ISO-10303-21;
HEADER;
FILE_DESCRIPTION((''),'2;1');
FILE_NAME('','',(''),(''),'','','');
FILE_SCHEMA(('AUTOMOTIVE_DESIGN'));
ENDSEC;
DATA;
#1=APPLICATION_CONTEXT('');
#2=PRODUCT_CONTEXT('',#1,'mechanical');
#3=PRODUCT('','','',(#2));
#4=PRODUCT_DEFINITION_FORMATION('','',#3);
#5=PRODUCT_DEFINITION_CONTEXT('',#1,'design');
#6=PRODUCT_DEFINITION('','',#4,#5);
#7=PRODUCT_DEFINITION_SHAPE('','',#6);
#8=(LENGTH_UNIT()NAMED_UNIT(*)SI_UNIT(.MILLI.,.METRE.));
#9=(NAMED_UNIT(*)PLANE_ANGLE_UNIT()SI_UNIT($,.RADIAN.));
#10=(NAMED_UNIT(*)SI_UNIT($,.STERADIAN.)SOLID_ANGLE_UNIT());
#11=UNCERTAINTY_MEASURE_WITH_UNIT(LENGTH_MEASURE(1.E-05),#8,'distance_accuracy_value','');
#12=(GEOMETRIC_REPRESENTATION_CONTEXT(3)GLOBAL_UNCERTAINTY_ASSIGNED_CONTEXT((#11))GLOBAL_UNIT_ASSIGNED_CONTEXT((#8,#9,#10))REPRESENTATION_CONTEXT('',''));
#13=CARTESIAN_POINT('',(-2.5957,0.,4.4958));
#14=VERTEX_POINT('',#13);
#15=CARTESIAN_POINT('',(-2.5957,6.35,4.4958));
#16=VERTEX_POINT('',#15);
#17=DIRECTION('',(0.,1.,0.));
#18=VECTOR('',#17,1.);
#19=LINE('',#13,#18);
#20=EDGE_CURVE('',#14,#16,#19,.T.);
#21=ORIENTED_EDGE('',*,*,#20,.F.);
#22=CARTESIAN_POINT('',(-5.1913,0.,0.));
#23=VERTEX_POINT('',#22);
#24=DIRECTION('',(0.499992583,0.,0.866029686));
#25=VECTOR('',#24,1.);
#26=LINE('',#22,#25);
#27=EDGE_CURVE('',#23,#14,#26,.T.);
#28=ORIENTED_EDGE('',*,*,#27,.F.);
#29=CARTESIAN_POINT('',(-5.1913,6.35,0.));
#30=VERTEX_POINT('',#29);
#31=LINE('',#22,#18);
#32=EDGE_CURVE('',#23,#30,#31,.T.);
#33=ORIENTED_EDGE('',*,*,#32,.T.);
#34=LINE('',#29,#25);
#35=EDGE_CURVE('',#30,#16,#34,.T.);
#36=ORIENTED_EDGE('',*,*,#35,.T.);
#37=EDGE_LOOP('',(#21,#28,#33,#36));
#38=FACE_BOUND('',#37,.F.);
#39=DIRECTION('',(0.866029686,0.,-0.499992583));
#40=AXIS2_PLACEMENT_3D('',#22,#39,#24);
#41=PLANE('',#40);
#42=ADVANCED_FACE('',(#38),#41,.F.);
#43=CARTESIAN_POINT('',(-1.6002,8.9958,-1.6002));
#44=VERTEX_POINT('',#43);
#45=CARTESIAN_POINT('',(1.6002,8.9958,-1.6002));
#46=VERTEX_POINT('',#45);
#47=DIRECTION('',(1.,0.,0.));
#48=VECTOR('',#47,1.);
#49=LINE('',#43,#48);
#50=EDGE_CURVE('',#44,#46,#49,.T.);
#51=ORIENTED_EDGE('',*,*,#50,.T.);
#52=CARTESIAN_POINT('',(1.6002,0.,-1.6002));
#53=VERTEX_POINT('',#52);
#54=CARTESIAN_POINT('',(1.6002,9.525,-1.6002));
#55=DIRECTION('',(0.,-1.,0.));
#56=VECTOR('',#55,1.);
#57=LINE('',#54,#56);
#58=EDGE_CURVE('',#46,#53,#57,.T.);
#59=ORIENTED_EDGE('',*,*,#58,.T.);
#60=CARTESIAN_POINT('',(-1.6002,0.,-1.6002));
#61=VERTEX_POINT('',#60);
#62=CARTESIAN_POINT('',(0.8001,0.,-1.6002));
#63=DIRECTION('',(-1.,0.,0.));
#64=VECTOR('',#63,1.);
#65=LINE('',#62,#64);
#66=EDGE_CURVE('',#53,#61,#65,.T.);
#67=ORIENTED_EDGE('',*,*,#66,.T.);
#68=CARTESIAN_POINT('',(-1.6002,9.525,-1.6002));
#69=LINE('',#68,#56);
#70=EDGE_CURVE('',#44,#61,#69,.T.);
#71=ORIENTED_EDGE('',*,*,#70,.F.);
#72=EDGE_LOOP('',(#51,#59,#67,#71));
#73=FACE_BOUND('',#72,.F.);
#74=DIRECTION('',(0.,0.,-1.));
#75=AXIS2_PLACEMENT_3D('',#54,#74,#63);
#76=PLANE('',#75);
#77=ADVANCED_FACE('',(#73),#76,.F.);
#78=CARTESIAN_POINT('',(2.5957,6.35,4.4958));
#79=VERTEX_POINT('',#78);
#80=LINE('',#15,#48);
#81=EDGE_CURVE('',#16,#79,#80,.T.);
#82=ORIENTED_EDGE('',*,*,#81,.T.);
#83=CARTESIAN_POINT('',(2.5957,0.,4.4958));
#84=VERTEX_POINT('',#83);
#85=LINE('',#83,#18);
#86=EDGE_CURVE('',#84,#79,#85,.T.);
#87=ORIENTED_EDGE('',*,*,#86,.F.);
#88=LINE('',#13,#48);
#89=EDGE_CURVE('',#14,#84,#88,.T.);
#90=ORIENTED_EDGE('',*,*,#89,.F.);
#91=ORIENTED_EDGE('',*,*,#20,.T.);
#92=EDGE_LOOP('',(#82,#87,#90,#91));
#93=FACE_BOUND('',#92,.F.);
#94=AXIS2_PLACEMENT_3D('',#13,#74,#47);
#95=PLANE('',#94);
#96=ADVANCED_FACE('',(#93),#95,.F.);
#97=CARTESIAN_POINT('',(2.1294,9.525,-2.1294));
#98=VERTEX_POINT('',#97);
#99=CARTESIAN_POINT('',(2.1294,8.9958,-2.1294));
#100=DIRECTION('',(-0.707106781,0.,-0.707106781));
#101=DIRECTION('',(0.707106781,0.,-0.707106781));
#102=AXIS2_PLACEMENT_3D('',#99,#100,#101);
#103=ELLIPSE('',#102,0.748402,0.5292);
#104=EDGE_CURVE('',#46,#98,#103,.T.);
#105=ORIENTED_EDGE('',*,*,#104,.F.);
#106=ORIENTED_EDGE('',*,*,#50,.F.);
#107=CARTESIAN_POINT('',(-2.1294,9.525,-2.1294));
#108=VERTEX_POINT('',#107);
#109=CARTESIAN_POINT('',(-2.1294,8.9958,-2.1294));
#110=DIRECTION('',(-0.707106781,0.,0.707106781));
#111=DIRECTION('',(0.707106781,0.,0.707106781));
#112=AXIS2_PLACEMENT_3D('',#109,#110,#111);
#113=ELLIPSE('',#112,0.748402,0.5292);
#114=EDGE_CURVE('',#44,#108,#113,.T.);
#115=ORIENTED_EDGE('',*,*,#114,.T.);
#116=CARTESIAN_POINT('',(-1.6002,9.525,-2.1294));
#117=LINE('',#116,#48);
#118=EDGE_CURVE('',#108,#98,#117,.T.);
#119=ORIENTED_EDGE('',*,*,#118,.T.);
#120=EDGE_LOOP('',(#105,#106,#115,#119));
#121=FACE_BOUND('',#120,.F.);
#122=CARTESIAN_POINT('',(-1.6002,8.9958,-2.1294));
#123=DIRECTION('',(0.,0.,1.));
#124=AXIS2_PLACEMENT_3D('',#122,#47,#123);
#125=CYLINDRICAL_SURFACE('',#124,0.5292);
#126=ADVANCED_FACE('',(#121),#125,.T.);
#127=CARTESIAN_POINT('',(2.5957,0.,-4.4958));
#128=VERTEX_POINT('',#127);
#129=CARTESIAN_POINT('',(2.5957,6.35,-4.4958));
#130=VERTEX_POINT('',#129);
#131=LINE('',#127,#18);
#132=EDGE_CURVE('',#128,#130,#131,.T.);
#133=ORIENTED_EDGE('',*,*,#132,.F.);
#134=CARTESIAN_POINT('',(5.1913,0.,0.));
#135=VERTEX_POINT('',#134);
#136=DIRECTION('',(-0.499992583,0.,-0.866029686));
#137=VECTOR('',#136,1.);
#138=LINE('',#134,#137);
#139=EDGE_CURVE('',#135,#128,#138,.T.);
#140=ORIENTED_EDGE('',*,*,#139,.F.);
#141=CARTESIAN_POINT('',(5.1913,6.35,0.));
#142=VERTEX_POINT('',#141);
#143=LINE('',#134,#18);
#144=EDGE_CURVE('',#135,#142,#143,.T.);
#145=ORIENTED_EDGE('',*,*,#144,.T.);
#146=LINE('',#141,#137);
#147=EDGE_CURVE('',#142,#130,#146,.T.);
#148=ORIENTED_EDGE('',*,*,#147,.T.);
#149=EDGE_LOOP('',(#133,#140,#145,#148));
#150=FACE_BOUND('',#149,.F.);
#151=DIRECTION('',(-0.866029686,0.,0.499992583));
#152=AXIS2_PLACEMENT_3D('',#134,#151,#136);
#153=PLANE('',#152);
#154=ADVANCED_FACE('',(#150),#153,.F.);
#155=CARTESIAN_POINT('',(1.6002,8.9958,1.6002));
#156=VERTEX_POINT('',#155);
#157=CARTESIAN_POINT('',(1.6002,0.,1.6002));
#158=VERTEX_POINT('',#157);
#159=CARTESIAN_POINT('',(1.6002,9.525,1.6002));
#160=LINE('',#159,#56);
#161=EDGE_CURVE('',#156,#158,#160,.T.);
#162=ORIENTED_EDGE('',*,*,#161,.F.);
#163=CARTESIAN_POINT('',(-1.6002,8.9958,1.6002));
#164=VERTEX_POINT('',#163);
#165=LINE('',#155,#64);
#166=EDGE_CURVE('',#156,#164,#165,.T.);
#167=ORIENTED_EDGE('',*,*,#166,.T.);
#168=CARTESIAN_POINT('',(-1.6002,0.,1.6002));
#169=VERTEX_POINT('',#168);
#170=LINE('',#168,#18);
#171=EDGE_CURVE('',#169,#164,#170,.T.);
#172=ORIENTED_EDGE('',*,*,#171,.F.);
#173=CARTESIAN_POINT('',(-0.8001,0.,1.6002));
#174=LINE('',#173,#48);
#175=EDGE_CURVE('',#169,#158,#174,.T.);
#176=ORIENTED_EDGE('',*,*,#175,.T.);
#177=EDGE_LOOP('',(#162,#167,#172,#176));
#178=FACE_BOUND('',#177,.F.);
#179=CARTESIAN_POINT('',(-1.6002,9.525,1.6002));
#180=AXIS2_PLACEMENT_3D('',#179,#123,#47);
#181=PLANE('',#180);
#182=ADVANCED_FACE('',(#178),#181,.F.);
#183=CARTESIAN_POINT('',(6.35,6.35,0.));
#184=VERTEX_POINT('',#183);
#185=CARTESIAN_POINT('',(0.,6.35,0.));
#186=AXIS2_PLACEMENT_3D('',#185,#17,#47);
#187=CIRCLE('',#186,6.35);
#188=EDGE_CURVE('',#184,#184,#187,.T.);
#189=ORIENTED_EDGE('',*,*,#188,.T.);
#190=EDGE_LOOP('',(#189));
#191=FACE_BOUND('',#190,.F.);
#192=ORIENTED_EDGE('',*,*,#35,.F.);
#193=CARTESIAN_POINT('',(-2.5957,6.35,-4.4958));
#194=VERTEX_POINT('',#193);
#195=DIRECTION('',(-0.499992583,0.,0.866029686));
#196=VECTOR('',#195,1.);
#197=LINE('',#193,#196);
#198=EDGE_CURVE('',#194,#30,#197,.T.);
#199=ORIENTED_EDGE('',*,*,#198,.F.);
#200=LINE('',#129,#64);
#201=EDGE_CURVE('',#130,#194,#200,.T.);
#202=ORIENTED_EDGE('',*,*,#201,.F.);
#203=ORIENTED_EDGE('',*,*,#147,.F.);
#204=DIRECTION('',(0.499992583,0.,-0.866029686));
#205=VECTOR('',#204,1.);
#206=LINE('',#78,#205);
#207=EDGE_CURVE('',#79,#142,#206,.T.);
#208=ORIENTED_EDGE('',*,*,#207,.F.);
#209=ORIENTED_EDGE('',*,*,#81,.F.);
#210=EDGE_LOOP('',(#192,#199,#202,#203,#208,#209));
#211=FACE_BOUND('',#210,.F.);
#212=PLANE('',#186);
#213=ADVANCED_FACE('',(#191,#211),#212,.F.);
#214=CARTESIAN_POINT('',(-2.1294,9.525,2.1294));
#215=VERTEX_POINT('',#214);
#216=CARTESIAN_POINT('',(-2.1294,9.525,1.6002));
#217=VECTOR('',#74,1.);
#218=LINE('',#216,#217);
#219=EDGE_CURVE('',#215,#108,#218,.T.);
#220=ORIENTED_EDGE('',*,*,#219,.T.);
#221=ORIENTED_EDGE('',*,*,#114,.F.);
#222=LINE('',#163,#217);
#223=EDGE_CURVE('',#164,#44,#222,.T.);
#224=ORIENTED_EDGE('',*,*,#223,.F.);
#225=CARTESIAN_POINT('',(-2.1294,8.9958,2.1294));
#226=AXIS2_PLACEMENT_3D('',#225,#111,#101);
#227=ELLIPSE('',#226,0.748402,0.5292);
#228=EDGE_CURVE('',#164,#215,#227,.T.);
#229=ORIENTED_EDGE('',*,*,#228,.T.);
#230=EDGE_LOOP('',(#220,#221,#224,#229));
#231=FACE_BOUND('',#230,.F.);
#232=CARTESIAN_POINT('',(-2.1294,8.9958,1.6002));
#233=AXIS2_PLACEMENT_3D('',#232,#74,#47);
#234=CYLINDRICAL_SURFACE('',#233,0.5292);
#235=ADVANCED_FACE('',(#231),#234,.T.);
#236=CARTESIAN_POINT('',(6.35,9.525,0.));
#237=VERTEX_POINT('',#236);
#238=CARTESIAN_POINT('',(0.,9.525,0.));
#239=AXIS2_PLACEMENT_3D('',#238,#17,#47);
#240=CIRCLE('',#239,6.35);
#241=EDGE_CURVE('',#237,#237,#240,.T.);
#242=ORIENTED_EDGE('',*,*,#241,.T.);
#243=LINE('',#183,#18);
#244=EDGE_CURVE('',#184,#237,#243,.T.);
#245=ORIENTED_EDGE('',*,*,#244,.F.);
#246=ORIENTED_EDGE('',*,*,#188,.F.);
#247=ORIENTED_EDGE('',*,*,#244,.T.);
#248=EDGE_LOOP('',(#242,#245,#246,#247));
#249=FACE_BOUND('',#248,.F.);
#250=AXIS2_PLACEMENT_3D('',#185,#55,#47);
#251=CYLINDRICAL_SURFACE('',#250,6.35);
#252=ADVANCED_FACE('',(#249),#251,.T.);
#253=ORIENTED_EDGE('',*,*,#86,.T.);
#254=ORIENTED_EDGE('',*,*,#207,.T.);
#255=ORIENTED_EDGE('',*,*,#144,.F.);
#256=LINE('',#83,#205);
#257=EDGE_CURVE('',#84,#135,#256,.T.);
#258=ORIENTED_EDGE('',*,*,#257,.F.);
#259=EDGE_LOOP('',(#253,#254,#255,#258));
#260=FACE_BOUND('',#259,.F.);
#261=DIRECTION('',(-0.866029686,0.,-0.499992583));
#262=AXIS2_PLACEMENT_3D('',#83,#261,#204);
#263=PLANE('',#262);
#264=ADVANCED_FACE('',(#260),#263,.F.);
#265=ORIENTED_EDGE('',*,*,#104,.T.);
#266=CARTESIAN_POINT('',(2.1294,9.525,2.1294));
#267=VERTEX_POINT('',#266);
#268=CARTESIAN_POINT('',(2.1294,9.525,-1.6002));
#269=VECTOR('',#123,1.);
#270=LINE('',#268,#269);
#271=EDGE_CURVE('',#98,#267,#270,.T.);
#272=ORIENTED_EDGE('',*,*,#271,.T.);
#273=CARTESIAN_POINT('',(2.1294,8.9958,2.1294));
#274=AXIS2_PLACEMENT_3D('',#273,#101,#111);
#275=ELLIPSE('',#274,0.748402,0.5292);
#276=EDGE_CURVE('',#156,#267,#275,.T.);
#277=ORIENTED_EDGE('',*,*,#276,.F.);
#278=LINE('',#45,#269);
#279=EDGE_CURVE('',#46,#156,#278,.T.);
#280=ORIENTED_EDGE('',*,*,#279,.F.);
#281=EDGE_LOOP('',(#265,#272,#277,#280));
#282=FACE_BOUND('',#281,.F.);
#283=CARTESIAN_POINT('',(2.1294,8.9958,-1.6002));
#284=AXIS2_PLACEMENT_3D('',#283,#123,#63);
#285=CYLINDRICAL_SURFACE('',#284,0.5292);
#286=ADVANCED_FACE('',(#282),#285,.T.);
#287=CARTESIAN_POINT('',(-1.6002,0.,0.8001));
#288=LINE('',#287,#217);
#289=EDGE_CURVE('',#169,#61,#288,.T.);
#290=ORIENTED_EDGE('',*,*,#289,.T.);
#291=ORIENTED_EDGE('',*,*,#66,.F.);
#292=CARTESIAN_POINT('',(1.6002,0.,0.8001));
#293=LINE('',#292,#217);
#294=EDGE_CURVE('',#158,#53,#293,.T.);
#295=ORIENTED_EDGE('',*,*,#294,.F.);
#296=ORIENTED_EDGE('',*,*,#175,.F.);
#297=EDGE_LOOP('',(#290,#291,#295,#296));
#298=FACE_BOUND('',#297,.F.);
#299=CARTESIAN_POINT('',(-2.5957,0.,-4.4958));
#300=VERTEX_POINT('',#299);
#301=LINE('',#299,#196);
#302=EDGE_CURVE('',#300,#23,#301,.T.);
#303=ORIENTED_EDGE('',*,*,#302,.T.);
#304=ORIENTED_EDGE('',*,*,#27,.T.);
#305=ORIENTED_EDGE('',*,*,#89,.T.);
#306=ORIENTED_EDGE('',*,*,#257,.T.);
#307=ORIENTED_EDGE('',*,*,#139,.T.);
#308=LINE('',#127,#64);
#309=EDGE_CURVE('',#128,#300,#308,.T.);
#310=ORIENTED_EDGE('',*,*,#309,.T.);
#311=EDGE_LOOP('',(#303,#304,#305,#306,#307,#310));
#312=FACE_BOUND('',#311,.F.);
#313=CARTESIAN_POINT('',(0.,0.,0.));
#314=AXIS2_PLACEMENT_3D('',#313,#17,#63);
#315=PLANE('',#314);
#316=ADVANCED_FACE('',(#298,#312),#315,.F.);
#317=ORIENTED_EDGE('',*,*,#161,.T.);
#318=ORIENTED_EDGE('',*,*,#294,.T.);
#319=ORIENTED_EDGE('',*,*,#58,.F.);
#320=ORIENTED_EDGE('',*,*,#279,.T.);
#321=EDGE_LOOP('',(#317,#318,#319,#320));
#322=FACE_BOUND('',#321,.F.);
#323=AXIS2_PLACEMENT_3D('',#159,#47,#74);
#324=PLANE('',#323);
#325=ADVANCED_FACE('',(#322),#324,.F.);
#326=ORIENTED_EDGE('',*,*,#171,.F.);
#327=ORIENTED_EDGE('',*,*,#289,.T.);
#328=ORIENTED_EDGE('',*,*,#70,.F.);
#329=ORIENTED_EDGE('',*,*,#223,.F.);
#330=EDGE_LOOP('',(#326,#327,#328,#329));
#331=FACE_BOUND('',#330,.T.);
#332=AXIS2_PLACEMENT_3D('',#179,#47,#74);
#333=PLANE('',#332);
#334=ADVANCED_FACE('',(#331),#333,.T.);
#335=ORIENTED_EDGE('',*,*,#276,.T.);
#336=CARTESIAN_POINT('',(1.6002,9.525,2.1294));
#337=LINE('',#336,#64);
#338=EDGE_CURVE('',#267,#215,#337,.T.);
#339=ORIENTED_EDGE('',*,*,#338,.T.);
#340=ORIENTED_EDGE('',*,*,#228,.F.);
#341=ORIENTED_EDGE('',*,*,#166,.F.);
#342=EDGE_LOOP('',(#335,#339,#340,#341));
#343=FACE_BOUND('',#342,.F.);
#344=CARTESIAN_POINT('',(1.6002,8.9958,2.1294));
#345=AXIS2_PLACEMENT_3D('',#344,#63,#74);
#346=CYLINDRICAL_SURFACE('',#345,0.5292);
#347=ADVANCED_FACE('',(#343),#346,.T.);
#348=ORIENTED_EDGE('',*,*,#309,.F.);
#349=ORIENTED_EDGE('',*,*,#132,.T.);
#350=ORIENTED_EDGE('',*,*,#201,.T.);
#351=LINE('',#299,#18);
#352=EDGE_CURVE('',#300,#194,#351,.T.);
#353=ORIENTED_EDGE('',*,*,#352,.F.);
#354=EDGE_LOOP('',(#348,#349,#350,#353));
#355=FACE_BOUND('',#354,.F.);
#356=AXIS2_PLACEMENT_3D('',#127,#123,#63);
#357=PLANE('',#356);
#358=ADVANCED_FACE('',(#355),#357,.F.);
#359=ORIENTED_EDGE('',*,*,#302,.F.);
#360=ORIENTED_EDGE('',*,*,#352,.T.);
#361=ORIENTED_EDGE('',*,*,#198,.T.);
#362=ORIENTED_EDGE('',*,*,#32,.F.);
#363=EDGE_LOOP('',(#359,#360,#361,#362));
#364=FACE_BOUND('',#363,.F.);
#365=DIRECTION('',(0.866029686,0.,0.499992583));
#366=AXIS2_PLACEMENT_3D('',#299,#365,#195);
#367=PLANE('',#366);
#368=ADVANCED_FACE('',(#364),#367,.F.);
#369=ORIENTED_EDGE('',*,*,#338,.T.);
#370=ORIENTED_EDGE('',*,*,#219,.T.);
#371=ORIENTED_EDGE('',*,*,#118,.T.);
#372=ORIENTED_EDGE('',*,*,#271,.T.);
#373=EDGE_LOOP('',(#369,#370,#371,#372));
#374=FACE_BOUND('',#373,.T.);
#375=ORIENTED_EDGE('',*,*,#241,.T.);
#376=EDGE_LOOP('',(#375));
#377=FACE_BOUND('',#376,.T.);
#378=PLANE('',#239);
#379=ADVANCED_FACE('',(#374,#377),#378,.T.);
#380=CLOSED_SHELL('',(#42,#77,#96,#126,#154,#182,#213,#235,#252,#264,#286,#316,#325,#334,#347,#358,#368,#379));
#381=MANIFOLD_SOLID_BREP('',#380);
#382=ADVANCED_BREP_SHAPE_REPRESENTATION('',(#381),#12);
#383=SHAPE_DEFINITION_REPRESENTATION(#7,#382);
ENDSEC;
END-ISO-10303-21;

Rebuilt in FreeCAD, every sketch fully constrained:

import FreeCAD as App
import Part
import Sketcher

V = App.Vector
Q = App.Units.Quantity


def edges_at(feature, points):
    """Names of the edges that pass closest to the given points."""
    edges = feature.Shape.Edges
    near = lambda p: min(range(len(edges)), key=lambda i: edges[i].distToShape(Part.Vertex(*p))[0])
    return sorted({f"Edge{near(p) + 1}" for p in points})


def add_polygon(sketch, points):
    """Adds a closed chain of lines whose ends are joined by coincident constraints."""
    first, n = sketch.GeometryCount, len(points)
    for a, b in zip(points, points[1:] + points[:1]):
        sketch.addGeometry(Part.LineSegment(App.Vector(*a, 0), App.Vector(*b, 0)), False)
    for i in range(n):
        sketch.addConstraint(Sketcher.Constraint("Coincident", first + i, 2, first + (i + 1) % n, 1))

doc = App.newDocument("Part")
params = doc.addObject("Spreadsheet::Sheet", "Params")
for row, (alias, value) in enumerate([
    ("pad1_length", "0.25 in"),
    ("sketch2_diameter", "0.5 in"),
    ("sketch2_width", "0.126 in"),
    ("pad2_length", "0.125 in"),
    ("sketch3_width", "0.126 in"),
    ("fillet_radius", "0.5292 mm"),
], start=1):
    params.set(f"A{row}", alias)
    params.set(f"B{row}", "=" + value)
    params.setAlias(f"B{row}", alias)

body = doc.addObject("PartDesign::Body", "Body")

# Sketch on XZ plane
sketch1 = body.newObject("Sketcher::SketchObject", "Sketch")
sketch1.AttachmentSupport = (doc.getObject("XZ_Plane"), [""])
sketch1.MapMode = "FlatFace"
add_polygon(sketch1, [(5, 0), (3, -4), (-3, -4), (-5, 0), (-3, 4), (3, 4)])  # lines 0-5
sketch1.addConstraint([
    Sketcher.Constraint("Horizontal", 1),
    Sketcher.Constraint("Horizontal", 4),
    Sketcher.Constraint("Symmetric", 0, 2, 3, 2, -1, 1),
    Sketcher.Constraint("Symmetric", 2, 2, 5, 2, -1, 1),
    Sketcher.Constraint("PointOnObject", 2, 2, -1),
    Sketcher.Constraint("Parallel", 2, 5),
    Sketcher.Constraint("Vertical", 1, 2, 3, 2),
    Sketcher.Constraint("Angle", 0, Q("-119.9995 deg")),
    Sketcher.Constraint("DistanceY", 0, 2, -1, 1, Q("0.177 in")),
    Sketcher.Constraint("DistanceX", 1, 2, 1, 1, Q("5.1914 mm")),
])
pad1 = body.newObject("PartDesign::Pad", "Pad")
pad1.Profile = sketch1
pad1.setExpression("Length", "Params.pad1_length")
pad1.Reversed = True

# Sketch on XZ plane
sketch2 = body.newObject("Sketcher::SketchObject", "Sketch001")
sketch2.AttachmentSupport = (doc.getObject("XZ_Plane"), [""])
sketch2.MapMode = "FlatFace"
sketch2.AttachmentOffset = App.Placement(V(0, 0, -0.25 * 25.4), App.Rotation())
sketch2.addGeometry(Part.Circle(V(0, 0, 0), V(0, 0, 1), 6.3), False)  # 0
add_polygon(sketch2, [(1.6, -1.6), (1.6, 1.6), (-1.6, 1.6), (-1.6, -1.6)])  # lines 1-4
sketch2.addConstraint([
    Sketcher.Constraint("Vertical", 1),
    Sketcher.Constraint("Horizontal", 2),
    Sketcher.Constraint("Vertical", 3),
    Sketcher.Constraint("Horizontal", 4),
    Sketcher.Constraint("Coincident", 0, 3, -1, 1),
    Sketcher.Constraint("Symmetric", 1, 2, 3, 2, -1, 1),
    Sketcher.Constraint("Equal", 4, 1),
    Sketcher.Constraint("Diameter", 0, Q("0.5 in")),
    Sketcher.Constraint("DistanceX", 2, 2, 2, 1, Q("0.126 in")),
])
sketch2.setExpression("Constraints[11]", "Params.sketch2_diameter")
sketch2.setExpression("Constraints[12]", "Params.sketch2_width")
pad2 = body.newObject("PartDesign::Pad", "Pad001")
pad2.Profile = sketch2
pad2.setExpression("Length", "Params.pad2_length")
pad2.Reversed = True

# Sketch on XZ plane
sketch3 = body.newObject("Sketcher::SketchObject", "Sketch002")
sketch3.AttachmentSupport = (doc.getObject("XZ_Plane"), [""])
sketch3.MapMode = "FlatFace"
sketch3.AttachmentOffset = App.Placement(V(0, 0, -0.375 * 25.4), App.Rotation())
add_polygon(sketch3, [(-1.6, -1.6), (-1.6, 1.6), (1.6, 1.6), (1.6, -1.6)])  # lines 0-3
sketch3.addConstraint([
    Sketcher.Constraint("Vertical", 0),
    Sketcher.Constraint("Horizontal", 1),
    Sketcher.Constraint("Vertical", 2),
    Sketcher.Constraint("Horizontal", 3),
    Sketcher.Constraint("Symmetric", 0, 2, 2, 2, -1, 1),
    Sketcher.Constraint("Equal", 3, 0),
    Sketcher.Constraint("DistanceX", 1, 1, 1, 2, Q("0.126 in")),
])
sketch3.setExpression("Constraints[10]", "Params.sketch3_width")
pocket1 = body.newObject("PartDesign::Pocket", "Pocket")
pocket1.Profile = sketch3
pocket1.Type = "ThroughAll"
pocket1.Reversed = True
doc.recompute()

fillet = body.newObject("PartDesign::Fillet", "Fillet")
fillet.Base = (pocket1, edges_at(pocket1, [
    (0, 9.525, -1.6),
    (1.6, 9.525, 0),
    (-1.6, 9.525, 0),
    (0, 9.525, 1.6),
]))
fillet.setExpression("Radius", "Params.fillet_radius")

doc.recompute()
